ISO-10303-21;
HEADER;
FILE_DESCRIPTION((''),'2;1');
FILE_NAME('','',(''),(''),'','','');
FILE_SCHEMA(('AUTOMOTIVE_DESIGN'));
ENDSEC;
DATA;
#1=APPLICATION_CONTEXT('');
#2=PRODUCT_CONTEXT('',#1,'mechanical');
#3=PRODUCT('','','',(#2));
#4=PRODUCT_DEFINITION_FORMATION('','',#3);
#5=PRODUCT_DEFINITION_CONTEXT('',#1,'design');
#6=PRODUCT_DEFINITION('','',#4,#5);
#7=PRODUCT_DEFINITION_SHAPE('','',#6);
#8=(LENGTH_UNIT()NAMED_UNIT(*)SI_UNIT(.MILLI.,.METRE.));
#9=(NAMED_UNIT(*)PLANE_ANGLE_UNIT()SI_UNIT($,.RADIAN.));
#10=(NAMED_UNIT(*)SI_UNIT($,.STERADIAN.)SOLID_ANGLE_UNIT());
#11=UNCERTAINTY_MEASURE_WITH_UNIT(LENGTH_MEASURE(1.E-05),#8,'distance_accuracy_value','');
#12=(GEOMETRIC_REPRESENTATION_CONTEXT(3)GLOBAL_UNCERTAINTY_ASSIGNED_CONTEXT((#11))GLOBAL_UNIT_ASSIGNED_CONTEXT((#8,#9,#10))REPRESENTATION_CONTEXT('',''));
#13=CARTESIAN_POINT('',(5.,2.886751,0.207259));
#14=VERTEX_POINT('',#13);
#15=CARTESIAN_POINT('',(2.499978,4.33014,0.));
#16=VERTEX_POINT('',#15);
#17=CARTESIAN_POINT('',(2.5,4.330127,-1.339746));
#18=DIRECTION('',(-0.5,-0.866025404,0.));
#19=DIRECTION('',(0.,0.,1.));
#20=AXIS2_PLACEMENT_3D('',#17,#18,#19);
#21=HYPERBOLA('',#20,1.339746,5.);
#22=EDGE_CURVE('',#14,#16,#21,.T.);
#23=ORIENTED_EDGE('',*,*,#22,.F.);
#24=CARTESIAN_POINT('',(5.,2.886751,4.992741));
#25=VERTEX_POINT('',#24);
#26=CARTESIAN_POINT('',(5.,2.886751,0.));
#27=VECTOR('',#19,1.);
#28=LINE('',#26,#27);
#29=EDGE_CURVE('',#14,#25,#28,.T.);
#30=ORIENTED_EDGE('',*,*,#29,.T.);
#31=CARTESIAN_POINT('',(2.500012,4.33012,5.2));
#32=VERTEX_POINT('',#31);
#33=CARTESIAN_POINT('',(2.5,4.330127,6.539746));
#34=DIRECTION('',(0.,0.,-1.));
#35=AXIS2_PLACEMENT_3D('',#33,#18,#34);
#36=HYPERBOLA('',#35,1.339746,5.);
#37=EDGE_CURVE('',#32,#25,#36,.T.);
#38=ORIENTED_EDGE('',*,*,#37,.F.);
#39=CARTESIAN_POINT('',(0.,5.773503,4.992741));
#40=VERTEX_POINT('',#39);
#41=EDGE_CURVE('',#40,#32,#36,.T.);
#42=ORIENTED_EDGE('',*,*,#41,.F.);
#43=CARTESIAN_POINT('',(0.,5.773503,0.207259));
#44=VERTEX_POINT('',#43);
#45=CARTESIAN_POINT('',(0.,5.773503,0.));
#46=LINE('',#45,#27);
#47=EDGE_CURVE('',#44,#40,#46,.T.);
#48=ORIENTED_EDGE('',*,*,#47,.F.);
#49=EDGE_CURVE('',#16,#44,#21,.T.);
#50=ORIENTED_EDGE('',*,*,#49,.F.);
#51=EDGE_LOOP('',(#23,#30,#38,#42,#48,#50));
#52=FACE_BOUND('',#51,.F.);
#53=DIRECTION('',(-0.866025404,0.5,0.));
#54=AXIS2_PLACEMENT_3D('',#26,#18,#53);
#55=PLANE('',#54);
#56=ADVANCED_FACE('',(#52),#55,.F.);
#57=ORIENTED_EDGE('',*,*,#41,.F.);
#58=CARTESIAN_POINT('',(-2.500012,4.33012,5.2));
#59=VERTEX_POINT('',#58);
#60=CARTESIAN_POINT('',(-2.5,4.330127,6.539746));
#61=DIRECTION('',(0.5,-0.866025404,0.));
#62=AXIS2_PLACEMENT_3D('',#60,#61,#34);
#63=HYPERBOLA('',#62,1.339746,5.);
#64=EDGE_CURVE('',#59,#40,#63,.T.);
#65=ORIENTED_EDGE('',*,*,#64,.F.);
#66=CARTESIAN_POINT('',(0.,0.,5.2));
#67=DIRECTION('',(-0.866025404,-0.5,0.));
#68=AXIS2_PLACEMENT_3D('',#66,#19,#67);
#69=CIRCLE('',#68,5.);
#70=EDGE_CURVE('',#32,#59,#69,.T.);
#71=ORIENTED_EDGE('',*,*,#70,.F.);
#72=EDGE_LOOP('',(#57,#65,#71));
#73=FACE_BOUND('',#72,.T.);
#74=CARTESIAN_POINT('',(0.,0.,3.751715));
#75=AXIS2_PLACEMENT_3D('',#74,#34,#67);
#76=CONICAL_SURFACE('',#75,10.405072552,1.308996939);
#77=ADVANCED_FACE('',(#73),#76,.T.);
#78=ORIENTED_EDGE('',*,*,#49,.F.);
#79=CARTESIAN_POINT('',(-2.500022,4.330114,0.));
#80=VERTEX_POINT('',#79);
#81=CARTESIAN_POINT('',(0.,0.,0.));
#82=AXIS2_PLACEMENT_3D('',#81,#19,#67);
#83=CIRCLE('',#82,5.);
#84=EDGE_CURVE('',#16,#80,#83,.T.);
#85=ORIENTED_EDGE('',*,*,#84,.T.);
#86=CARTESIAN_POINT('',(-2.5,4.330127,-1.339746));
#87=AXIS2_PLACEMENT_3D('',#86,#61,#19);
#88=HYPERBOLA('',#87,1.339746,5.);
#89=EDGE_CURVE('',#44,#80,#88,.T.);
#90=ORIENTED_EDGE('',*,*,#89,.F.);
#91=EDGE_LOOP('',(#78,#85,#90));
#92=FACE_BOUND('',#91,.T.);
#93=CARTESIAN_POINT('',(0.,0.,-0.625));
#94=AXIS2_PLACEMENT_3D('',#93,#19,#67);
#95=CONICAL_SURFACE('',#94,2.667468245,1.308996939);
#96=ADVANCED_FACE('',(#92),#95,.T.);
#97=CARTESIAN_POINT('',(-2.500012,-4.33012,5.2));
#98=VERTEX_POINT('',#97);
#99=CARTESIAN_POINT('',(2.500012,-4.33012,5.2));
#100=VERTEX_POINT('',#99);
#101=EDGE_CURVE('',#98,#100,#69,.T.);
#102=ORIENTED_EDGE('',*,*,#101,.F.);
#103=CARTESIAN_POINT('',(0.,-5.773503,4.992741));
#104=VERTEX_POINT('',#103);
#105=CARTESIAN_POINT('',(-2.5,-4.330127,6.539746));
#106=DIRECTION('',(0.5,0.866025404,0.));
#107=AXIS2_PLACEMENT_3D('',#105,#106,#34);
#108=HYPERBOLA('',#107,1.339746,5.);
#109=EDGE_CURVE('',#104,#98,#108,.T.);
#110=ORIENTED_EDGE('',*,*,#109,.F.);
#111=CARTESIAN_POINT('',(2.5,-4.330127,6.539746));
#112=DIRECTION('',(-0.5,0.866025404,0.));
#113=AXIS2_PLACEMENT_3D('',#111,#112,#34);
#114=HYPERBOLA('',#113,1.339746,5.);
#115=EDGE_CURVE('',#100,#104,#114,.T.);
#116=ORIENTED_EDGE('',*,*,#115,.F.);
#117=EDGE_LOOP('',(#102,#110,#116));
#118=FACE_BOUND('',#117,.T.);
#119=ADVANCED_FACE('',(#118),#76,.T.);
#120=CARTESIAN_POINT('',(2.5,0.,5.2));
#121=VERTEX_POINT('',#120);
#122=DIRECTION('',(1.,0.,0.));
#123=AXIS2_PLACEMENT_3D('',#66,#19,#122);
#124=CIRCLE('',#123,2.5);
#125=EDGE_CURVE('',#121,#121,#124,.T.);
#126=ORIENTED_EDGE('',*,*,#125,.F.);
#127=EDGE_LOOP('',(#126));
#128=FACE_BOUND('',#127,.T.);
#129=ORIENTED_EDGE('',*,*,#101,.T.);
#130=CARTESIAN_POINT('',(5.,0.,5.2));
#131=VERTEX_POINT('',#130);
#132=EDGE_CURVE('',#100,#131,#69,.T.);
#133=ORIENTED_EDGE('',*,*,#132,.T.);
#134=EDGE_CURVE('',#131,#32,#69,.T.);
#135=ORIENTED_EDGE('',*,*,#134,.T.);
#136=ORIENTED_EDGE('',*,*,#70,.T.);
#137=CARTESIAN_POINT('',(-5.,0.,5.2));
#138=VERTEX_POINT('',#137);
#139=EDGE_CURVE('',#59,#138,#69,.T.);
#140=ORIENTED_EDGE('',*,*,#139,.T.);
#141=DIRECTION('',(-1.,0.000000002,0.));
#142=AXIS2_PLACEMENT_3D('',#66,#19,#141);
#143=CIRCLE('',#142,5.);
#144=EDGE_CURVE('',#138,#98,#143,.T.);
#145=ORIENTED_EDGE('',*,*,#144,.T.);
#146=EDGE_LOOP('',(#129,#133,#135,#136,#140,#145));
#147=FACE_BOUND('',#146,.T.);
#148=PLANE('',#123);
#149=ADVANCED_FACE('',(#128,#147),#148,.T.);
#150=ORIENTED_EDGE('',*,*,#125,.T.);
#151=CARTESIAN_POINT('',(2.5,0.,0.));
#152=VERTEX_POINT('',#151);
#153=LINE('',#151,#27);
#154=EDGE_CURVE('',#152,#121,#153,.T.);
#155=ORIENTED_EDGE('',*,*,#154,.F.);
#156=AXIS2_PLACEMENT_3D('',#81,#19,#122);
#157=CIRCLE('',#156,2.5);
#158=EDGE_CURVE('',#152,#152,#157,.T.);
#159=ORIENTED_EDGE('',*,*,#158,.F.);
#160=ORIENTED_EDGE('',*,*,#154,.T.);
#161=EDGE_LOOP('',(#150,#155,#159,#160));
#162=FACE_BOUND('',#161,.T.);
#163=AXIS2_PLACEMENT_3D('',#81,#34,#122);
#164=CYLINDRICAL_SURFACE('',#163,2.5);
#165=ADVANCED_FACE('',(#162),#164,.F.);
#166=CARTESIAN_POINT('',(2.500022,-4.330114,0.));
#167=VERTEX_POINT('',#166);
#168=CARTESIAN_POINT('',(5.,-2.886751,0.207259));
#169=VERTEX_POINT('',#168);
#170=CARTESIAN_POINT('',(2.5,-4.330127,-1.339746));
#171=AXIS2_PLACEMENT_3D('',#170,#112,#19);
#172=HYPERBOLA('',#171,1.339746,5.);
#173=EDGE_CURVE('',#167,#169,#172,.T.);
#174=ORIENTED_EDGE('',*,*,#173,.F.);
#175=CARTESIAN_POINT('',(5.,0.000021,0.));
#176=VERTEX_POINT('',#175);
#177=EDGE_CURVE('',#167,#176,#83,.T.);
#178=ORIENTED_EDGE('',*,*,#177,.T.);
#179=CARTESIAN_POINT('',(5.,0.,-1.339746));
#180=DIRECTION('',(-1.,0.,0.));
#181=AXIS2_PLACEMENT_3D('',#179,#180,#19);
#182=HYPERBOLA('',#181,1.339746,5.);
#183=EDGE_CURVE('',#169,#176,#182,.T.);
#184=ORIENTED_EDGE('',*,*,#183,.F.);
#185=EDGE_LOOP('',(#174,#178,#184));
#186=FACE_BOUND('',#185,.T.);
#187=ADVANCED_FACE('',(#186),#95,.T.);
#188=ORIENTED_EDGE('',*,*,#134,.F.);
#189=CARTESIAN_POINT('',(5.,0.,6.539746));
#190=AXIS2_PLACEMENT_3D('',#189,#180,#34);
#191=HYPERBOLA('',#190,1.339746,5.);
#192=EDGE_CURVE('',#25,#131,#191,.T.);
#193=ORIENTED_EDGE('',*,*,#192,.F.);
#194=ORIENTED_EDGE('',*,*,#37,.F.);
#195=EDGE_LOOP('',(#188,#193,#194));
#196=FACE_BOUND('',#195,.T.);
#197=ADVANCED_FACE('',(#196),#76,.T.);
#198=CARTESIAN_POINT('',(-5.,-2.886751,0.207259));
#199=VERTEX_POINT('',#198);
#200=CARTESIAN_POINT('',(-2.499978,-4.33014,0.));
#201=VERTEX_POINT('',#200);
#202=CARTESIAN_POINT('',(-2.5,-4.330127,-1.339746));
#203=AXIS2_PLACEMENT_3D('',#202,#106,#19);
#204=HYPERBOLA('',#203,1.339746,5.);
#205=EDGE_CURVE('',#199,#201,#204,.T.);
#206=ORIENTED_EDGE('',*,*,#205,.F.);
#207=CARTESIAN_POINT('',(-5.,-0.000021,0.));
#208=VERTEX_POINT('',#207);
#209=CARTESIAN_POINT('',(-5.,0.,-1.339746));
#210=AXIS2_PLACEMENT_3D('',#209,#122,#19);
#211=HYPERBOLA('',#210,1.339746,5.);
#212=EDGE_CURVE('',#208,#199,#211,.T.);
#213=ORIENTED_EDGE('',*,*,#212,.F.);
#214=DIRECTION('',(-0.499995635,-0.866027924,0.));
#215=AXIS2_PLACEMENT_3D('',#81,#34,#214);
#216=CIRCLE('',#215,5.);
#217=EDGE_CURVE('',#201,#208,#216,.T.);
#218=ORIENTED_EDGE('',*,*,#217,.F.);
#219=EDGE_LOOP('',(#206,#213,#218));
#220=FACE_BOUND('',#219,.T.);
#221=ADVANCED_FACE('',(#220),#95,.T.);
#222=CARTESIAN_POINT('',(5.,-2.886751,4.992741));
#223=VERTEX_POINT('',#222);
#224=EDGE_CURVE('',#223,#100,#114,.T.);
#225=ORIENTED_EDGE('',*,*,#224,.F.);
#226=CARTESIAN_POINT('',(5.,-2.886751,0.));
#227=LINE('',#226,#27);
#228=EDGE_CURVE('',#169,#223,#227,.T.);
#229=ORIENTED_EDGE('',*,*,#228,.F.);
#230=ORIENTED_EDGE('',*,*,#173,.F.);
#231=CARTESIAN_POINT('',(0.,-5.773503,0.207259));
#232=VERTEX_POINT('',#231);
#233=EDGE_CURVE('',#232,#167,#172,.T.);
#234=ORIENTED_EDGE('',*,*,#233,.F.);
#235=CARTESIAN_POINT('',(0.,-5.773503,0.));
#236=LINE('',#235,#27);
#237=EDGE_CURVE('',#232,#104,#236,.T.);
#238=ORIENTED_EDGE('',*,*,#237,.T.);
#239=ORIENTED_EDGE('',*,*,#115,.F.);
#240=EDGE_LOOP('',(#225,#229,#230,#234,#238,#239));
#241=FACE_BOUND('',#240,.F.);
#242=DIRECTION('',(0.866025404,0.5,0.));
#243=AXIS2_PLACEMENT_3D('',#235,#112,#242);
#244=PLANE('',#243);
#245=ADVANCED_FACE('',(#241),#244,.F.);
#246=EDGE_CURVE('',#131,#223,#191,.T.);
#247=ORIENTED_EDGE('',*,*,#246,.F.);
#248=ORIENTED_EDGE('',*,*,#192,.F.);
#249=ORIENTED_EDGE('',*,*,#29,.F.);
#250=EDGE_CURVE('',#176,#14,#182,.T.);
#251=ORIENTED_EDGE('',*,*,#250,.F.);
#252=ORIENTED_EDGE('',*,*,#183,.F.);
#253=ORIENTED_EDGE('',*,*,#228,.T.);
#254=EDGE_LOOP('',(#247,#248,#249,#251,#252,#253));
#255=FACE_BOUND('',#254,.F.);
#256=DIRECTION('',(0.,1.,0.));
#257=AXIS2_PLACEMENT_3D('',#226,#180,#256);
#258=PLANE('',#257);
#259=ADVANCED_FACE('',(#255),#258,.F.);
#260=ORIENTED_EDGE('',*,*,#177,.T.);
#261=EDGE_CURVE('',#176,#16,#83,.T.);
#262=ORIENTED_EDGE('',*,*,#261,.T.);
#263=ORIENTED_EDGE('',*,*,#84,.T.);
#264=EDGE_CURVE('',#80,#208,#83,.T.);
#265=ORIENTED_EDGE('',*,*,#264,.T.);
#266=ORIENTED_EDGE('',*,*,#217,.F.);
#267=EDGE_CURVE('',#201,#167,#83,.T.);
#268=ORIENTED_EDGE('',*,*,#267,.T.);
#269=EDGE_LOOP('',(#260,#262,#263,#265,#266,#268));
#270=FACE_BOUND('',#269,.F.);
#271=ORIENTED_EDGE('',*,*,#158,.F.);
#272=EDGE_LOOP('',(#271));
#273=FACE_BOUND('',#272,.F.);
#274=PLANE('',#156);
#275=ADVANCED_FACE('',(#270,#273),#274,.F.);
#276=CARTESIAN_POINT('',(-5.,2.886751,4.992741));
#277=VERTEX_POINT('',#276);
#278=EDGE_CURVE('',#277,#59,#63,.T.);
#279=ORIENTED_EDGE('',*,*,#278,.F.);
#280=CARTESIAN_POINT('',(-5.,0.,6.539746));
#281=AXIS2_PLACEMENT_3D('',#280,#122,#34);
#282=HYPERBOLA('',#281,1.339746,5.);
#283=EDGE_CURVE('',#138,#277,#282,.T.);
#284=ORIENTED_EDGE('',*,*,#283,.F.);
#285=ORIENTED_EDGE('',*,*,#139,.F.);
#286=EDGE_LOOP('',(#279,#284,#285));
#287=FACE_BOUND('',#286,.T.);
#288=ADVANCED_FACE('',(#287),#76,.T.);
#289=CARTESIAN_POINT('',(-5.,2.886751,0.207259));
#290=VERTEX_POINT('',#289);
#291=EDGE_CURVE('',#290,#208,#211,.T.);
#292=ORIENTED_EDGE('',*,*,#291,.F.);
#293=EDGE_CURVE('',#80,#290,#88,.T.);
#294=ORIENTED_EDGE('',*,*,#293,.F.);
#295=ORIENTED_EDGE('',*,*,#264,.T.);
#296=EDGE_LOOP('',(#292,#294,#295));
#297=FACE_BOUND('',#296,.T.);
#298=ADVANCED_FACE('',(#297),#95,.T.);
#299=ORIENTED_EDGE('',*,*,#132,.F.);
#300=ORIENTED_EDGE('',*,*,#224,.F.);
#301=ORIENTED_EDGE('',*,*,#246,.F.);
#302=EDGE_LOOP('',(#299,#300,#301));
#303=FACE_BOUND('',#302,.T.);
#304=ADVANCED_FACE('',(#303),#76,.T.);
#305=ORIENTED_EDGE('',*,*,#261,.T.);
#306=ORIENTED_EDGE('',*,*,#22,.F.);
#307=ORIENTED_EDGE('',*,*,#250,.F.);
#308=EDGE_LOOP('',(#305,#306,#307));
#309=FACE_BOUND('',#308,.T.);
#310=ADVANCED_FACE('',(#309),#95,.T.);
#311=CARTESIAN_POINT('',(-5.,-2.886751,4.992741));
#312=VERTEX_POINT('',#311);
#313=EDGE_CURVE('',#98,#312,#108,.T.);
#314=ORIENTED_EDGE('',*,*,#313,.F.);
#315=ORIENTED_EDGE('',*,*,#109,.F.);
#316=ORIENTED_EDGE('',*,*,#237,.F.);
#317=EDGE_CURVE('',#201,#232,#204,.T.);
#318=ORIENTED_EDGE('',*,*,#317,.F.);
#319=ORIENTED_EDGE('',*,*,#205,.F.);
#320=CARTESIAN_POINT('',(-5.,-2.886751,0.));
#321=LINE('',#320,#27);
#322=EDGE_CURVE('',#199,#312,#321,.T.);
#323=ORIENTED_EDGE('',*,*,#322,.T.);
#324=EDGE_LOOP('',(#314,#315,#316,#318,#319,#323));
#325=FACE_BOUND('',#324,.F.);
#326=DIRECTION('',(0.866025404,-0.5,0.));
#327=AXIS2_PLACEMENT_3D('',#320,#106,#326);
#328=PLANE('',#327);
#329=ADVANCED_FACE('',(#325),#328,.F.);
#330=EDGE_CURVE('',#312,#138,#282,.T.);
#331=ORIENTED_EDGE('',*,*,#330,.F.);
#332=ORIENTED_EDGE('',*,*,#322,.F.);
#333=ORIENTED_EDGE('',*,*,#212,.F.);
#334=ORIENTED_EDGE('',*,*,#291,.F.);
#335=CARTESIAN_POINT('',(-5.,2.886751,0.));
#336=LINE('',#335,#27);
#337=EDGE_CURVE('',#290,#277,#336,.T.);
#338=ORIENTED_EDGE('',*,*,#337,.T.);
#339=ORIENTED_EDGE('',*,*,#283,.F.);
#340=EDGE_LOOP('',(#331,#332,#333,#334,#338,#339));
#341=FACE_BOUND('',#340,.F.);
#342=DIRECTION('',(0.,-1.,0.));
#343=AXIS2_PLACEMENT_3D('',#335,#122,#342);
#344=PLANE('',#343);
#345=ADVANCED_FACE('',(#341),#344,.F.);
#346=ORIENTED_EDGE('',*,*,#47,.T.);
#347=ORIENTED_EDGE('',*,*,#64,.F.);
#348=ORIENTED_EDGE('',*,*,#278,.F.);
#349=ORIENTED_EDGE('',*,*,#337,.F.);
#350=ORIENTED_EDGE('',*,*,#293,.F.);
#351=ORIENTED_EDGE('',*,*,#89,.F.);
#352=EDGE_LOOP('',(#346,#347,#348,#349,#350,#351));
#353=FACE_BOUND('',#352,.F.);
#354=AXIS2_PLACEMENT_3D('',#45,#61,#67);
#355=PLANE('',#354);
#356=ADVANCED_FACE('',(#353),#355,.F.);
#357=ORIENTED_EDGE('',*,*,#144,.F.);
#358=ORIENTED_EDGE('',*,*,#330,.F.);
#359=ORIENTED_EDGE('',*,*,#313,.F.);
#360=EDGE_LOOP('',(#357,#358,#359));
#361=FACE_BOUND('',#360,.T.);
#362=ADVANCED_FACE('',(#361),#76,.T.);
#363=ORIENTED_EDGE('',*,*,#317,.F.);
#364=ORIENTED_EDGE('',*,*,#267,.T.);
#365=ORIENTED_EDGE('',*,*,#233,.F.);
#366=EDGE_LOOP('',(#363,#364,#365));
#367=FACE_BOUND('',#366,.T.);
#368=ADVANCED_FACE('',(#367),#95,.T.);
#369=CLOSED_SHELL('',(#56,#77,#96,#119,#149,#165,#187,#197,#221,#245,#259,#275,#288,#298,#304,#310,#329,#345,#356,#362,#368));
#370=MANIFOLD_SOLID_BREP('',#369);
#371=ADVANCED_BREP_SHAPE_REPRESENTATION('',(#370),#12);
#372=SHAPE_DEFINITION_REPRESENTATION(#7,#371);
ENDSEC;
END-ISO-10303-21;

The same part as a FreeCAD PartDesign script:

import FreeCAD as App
import Part
import Sketcher

V = App.Vector
Q = App.Units.Quantity


def add_polygon(sketch, points):
    """Adds a closed chain of lines whose ends are joined by coincident constraints."""
    first, n = sketch.GeometryCount, len(points)
    for a, b in zip(points, points[1:] + points[:1]):
        sketch.addGeometry(Part.LineSegment(App.Vector(*a, 0), App.Vector(*b, 0)), False)
    for i in range(n):
        sketch.addConstraint(Sketcher.Constraint("Coincident", first + i, 2, first + (i + 1) % n, 1))

doc = App.newDocument("Part")
body = doc.addObject("PartDesign::Body", "Body")

# Sketch on XY plane
sketch1 = doc.addObject("Sketcher::SketchObject", "Sketch")
body.addObject(sketch1)
sketch1.AttachmentSupport = (doc.XY_Plane, [""])
sketch1.MapMode = "FlatFace"
add_polygon(sketch1, [(5, -2.886751), (5, 2.886751), (0, 5.773503), (-5, 2.886751), (-5, -2.886751), (0, -5.773503)])  # lines 0-5
sketch1.addGeometry(Part.Circle(V(0, 0, 0), V(0, 0, 1), 2.5), False)  # 6
sketch1.addConstraint(Sketcher.Constraint("Vertical", 0))
sketch1.addConstraint(Sketcher.Constraint("Vertical", 3))
sketch1.addConstraint(Sketcher.Constraint("Coincident", 6, 3, -1, 1))
sketch1.addConstraint(Sketcher.Constraint("Symmetric", 0, 2, 3, 2, -1, 1))
sketch1.addConstraint(Sketcher.Constraint("Symmetric", 1, 2, 4, 2, -1, 1))
sketch1.addConstraint(Sketcher.Constraint("PointOnObject", 1, 2, -2))
sketch1.addConstraint(Sketcher.Constraint("Parallel", 2, 5))
sketch1.addConstraint(Sketcher.Constraint("Horizontal", 0, 2, 2, 2))
sketch1.addConstraint(Sketcher.Constraint("Diameter", 6, Q("5 mm")))
sketch1.addConstraint(Sketcher.Constraint("Angle", 1, Q("150 deg")))
sketch1.addConstraint(Sketcher.Constraint("DistanceX", -1, 1, 0, 2, Q("5 mm")))
sketch1.addConstraint(Sketcher.Constraint("DistanceY", 0, 1, 0, 2, Q("5.773503 mm")))
pad1 = doc.addObject("PartDesign::Pad", "Pad")
body.addObject(pad1)
pad1.Profile = sketch1
pad1.Length = 5.2

# Sketch on an angled plane
sketch2 = doc.addObject("Sketcher::SketchObject", "Sketch001")
body.addObject(sketch2)
sketch2.Placement = App.Placement(V(0, 0, 0), App.Rotation(V(0.866025404, 0.5, 0), V(0, 0, 1), V(0.5, -0.866025404, 0), "ZXY"))
add_polygon(sketch2, [(-5, 5.2), (-2.667468, 5.825), (-10.405073, 5.825), (-10.405073, 3.751715)])  # lines 0-3
add_polygon(sketch2, [(-10.405073, -0.625), (-2.667468, -0.625), (-10.405073, 1.448285)])  # lines 4-6
sketch2.addConstraint(Sketcher.Constraint("Horizontal", 1))
sketch2.addConstraint(Sketcher.Constraint("Vertical", 2))
sketch2.addConstraint(Sketcher.Constraint("Horizontal", 4))
sketch2.addConstraint(Sketcher.Constraint("Vertical", 6))
sketch2.addConstraint(Sketcher.Constraint("Parallel", 0, 3))
sketch2.addConstraint(Sketcher.Constraint("Vertical", 0, 2, 4, 2))
sketch2.addConstraint(Sketcher.Constraint("Vertical", 2, 2, 5, 2))
sketch2.addConstraint(Sketcher.Constraint("Equal", 2, 6))
sketch2.addConstraint(Sketcher.Constraint("Angle", 0, Q("15 deg")))
sketch2.addConstraint(Sketcher.Constraint("DistanceX", 3, 2, -1, 1, Q("5 mm")))
sketch2.addConstraint(Sketcher.Constraint("DistanceY", -1, 1, 3, 2, Q("5.2 mm")))
sketch2.addConstraint(Sketcher.Constraint("DistanceY", 4, 2, 0, 2, Q("6.45 mm")))
sketch2.addConstraint(Sketcher.Constraint("DistanceY", -1, 1, 0, 2, Q("5.825 mm")))
sketch2.addConstraint(Sketcher.Constraint("DistanceX", 1, 2, 1, 1, Q("7.737604 mm")))
groove = doc.addObject("PartDesign::Groove", "Groove")
body.addObject(groove)
groove.Profile = sketch2
groove.ReferenceAxis = (sketch2, ["V_Axis"])
groove.Angle = 360

doc.recompute()
